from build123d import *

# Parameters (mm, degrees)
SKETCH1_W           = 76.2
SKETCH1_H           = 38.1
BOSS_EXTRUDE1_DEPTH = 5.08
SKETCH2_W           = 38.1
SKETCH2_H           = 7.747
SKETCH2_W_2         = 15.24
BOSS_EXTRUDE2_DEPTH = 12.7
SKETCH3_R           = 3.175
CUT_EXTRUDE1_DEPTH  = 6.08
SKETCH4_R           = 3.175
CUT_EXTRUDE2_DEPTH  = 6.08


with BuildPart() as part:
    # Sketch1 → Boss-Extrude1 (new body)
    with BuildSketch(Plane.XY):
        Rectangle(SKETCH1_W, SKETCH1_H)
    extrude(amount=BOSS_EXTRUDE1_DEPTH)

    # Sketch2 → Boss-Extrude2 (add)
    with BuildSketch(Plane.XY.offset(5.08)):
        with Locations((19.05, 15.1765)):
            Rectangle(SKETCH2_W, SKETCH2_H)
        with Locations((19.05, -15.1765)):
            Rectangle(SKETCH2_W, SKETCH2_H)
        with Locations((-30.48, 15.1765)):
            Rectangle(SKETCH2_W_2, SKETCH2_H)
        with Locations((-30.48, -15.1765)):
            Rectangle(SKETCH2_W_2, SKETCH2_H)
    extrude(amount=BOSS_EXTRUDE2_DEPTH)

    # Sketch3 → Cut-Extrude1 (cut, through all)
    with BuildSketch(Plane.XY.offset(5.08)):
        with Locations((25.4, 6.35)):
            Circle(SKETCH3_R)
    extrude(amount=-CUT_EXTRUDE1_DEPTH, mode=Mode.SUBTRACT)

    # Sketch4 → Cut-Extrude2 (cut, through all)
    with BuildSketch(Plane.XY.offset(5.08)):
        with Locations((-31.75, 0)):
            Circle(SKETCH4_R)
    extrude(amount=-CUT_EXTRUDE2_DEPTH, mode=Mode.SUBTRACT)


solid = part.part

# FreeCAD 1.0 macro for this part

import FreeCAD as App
import Part
import Sketcher
Q = App.Units.Quantity

doc = App.newDocument("Part")
body = doc.addObject("PartDesign::Body", "Body")

sketch1 = doc.addObject("Sketcher::SketchObject", "Sketch")
body.addObject(sketch1)
sketch1.AttachmentSupport = (doc.XY_Plane, [""])
sketch1.MapMode = "FlatFace"
sketch1.addGeometry(Part.LineSegment(App.Vector(-38, 19, 0), App.Vector(-38, -19, 0)), False)
sketch1.addGeometry(Part.LineSegment(App.Vector(-38, -19, 0), App.Vector(38, -19, 0)), False)
sketch1.addGeometry(Part.LineSegment(App.Vector(38, -19, 0), App.Vector(38, 19, 0)), False)
sketch1.addGeometry(Part.LineSegment(App.Vector(38, 19, 0), App.Vector(-38, 19, 0)), False)
sketch1.addConstraint(Sketcher.Constraint("Coincident", 0, 2, 1, 1))
sketch1.addConstraint(Sketcher.Constraint("Coincident", 1, 2, 2, 1))
sketch1.addConstraint(Sketcher.Constraint("Coincident", 2, 2, 3, 1))
sketch1.addConstraint(Sketcher.Constraint("Coincident", 3, 2, 0, 1))
sketch1.addConstraint(Sketcher.Constraint("Vertical", 0))
sketch1.addConstraint(Sketcher.Constraint("Horizontal", 1))
sketch1.addConstraint(Sketcher.Constraint("Vertical", 2))
sketch1.addConstraint(Sketcher.Constraint("Horizontal", 3))
sketch1.addConstraint(Sketcher.Constraint("Symmetric", 0, 2, 2, 2, -1, 1))
sketch1.addConstraint(Sketcher.Constraint("DistanceX", 1, 1, 1, 2, Q("3 in")))
sketch1.addConstraint(Sketcher.Constraint("DistanceY", 0, 2, 0, 1, Q("1.5 in")))
pad1 = doc.addObject("PartDesign::Pad", "Pad")
body.addObject(pad1)
pad1.Profile = sketch1
pad1.Length = Q("0.2 in")

sketch2 = doc.addObject("Sketcher::SketchObject", "Sketch001")
body.addObject(sketch2)
sketch2.AttachmentSupport = (doc.XY_Plane, [""])
sketch2.MapMode = "FlatFace"
sketch2.AttachmentOffset = App.Placement(App.Vector(0, 0, 0.2 * 25.4), App.Rotation())
sketch2.addGeometry(Part.LineSegment(App.Vector(0, 19, 0), App.Vector(0, 11, 0)), False)
sketch2.addGeometry(Part.LineSegment(App.Vector(0, 11, 0), App.Vector(38, 11, 0)), False)
sketch2.addGeometry(Part.LineSegment(App.Vector(38, 11, 0), App.Vector(38, 19, 0)), False)
sketch2.addGeometry(Part.LineSegment(App.Vector(38, 19, 0), App.Vector(0, 19, 0)), False)
sketch2.addGeometry(Part.LineSegment(App.Vector(0, -11, 0), App.Vector(0, -19, 0)), False)
sketch2.addGeometry(Part.LineSegment(App.Vector(0, -19, 0), App.Vector(38, -19, 0)), False)
sketch2.addGeometry(Part.LineSegment(App.Vector(38, -19, 0), App.Vector(38, -11, 0)), False)
sketch2.addGeometry(Part.LineSegment(App.Vector(38, -11, 0), App.Vector(0, -11, 0)), False)
sketch2.addGeometry(Part.LineSegment(App.Vector(-38, 19, 0), App.Vector(-38, 11, 0)), False)
sketch2.addGeometry(Part.LineSegment(App.Vector(-38, 11, 0), App.Vector(-23, 11, 0)), False)
sketch2.addGeometry(Part.LineSegment(App.Vector(-23, 11, 0), App.Vector(-23, 19, 0)), False)
sketch2.addGeometry(Part.LineSegment(App.Vector(-23, 19, 0), App.Vector(-38, 19, 0)), False)
sketch2.addGeometry(Part.LineSegment(App.Vector(-38, -11, 0), App.Vector(-38, -19, 0)), False)
sketch2.addGeometry(Part.LineSegment(App.Vector(-38, -19, 0), App.Vector(-23, -19, 0)), False)
sketch2.addGeometry(Part.LineSegment(App.Vector(-23, -19, 0), App.Vector(-23, -11, 0)), False)
sketch2.addGeometry(Part.LineSegment(App.Vector(-23, -11, 0), App.Vector(-38, -11, 0)), False)
sketch2.addConstraint(Sketcher.Constraint("Coincident", 0, 2, 1, 1))
sketch2.addConstraint(Sketcher.Constraint("Coincident", 1, 2, 2, 1))
sketch2.addConstraint(Sketcher.Constraint("Coincident", 2, 2, 3, 1))
sketch2.addConstraint(Sketcher.Constraint("Coincident", 3, 2, 0, 1))
sketch2.addConstraint(Sketcher.Constraint("Coincident", 4, 2, 5, 1))
sketch2.addConstraint(Sketcher.Constraint("Coincident", 5, 2, 6, 1))
sketch2.addConstraint(Sketcher.Constraint("Coincident", 6, 2, 7, 1))
sketch2.addConstraint(Sketcher.Constraint("Coincident", 7, 2, 4, 1))
sketch2.addConstraint(Sketcher.Constraint("Coincident", 8, 2, 9, 1))
sketch2.addConstraint(Sketcher.Constraint("Coincident", 9, 2, 10, 1))
sketch2.addConstraint(Sketcher.Constraint("Coincident", 10, 2, 11, 1))
sketch2.addConstraint(Sketcher.Constraint("Coincident", 11, 2, 8, 1))
sketch2.addConstraint(Sketcher.Constraint("Coincident", 12, 2, 13, 1))
sketch2.addConstraint(Sketcher.Constraint("Coincident", 13, 2, 14, 1))
sketch2.addConstraint(Sketcher.Constraint("Coincident", 14, 2, 15, 1))
sketch2.addConstraint(Sketcher.Constraint("Coincident", 15, 2, 12, 1))
sketch2.addConstraint(Sketcher.Constraint("Vertical", 0))
sketch2.addConstraint(Sketcher.Constraint("Horizontal", 1))
sketch2.addConstraint(Sketcher.Constraint("Vertical", 2))
sketch2.addConstraint(Sketcher.Constraint("Horizontal", 3))
sketch2.addConstraint(Sketcher.Constraint("Vertical", 4))
sketch2.addConstraint(Sketcher.Constraint("Horizontal", 5))
sketch2.addConstraint(Sketcher.Constraint("Vertical", 6))
sketch2.addConstraint(Sketcher.Constraint("Horizontal", 7))
sketch2.addConstraint(Sketcher.Constraint("Vertical", 8))
sketch2.addConstraint(Sketcher.Constraint("Horizontal", 9))
sketch2.addConstraint(Sketcher.Constraint("Vertical", 10))
sketch2.addConstraint(Sketcher.Constraint("Horizontal", 11))
sketch2.addConstraint(Sketcher.Constraint("Vertical", 12))
sketch2.addConstraint(Sketcher.Constraint("Horizontal", 13))
sketch2.addConstraint(Sketcher.Constraint("Vertical", 14))
sketch2.addConstraint(Sketcher.Constraint("Horizontal", 15))
sketch2.addConstraint(Sketcher.Constraint("Symmetric", 3, 2, 4, 2, -1, 1))
sketch2.addConstraint(Sketcher.Constraint("Symmetric", 6, 2, 8, 2, -1, 1))
sketch2.addConstraint(Sketcher.Constraint("Symmetric", 2, 2, 12, 2, -1, 1))
sketch2.addConstraint(Sketcher.Constraint("Symmetric", 1, 2, 8, 2, -2))
sketch2.addConstraint(Sketcher.Constraint("Symmetric", 10, 2, 13, 2, -1))
sketch2.addConstraint(Sketcher.Constraint("PointOnObject", 0, 2, -2))
sketch2.addConstraint(Sketcher.Constraint("Horizontal", 7, 2, 14, 2))
sketch2.addConstraint(Sketcher.Constraint("DistanceX", 1, 1, 1, 2, Q("1.5 in")))
sketch2.addConstraint(Sketcher.Constraint("DistanceX", 9, 1, 9, 2, Q("0.6 in")))
sketch2.addConstraint(Sketcher.Constraint("DistanceY", 4, 2, 3, 2, Q("1.5 in")))
sketch2.addConstraint(Sketcher.Constraint("DistanceY", 0, 2, 0, 1, Q("0.305 in")))
pad2 = doc.addObject("PartDesign::Pad", "Pad001")
body.addObject(pad2)
pad2.Profile = sketch2
pad2.Length = Q("0.5 in")

sketch3 = doc.addObject("Sketcher::SketchObject", "Sketch002")
body.addObject(sketch3)
sketch3.AttachmentSupport = (doc.XY_Plane, [""])
sketch3.MapMode = "FlatFace"
sketch3.AttachmentOffset = App.Placement(App.Vector(0, 0, 0.2 * 25.4), App.Rotation())
sketch3.addGeometry(Part.Circle(App.Vector(25.4, 6.3, 0), App.Vector(0, 0, 1), 3.2), False)
sketch3.addConstraint(Sketcher.Constraint("Diameter", 0, Q("0.25 in")))
sketch3.addConstraint(Sketcher.Constraint("DistanceX", -1, 1, 0, 3, Q("1 in")))
sketch3.addConstraint(Sketcher.Constraint("DistanceY", -1, 1, 0, 3, Q("0.25 in")))
pocket1 = doc.addObject("PartDesign::Pocket", "Pocket")
body.addObject(pocket1)
pocket1.Profile = sketch3
pocket1.Type = "ThroughAll"

sketch4 = doc.addObject("Sketcher::SketchObject", "Sketch003")
body.addObject(sketch4)
sketch4.AttachmentSupport = (doc.XY_Plane, [""])
sketch4.MapMode = "FlatFace"
sketch4.AttachmentOffset = App.Placement(App.Vector(0, 0, 0.2 * 25.4), App.Rotation())
sketch4.addGeometry(Part.Circle(App.Vector(-31.8, 0, 0), App.Vector(0, 0, 1), 3.2), False)
sketch4.addConstraint(Sketcher.Constraint("PointOnObject", 0, 3, -1))
sketch4.addConstraint(Sketcher.Constraint("Diameter", 0, Q("0.25 in")))
sketch4.addConstraint(Sketcher.Constraint("DistanceX", 0, 3, -1, 1, Q("1.25 in")))
pocket2 = doc.addObject("PartDesign::Pocket", "Pocket001")
body.addObject(pocket2)
pocket2.Profile = sketch4
pocket2.Type = "ThroughAll"

doc.recompute()
